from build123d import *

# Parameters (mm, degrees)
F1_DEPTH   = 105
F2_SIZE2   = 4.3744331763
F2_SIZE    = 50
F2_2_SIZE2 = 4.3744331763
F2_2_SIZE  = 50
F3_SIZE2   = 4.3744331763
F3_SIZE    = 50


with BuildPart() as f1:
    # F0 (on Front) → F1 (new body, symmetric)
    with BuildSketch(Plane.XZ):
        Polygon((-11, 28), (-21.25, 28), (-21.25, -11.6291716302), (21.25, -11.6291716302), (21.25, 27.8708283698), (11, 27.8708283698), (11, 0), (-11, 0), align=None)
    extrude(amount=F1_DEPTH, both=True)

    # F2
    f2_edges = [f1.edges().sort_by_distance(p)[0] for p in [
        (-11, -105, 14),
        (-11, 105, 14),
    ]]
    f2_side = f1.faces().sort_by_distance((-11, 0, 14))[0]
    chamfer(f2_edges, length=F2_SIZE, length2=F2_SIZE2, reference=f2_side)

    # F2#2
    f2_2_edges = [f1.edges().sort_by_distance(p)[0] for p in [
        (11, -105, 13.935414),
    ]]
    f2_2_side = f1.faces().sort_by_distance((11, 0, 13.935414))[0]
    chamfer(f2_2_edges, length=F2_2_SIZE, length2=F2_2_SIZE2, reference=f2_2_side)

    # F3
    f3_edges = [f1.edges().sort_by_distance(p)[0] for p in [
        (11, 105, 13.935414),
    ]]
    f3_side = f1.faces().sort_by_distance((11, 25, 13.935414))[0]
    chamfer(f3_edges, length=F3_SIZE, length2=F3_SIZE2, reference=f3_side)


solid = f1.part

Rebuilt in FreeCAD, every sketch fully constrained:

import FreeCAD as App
import Part
import Sketcher
from FreeCAD import Vector


def edges_at(feature, points):
    """Names of the edges that pass closest to the given points."""
    edges = feature.Shape.Edges
    near = lambda p: min(range(len(edges)), key=lambda i: edges[i].distToShape(Part.Vertex(*p))[0])
    return sorted({f"Edge{near(p) + 1}" for p in points})

doc = App.newDocument("Part")
params = doc.addObject("Spreadsheet::Sheet", "Params")
for row, (alias, value) in enumerate([
    ("sketch1_width", "22 mm"),
    ("sketch1_height", "28 mm"),
    ("sketch1_width2", "42.5 mm"),
    ("sketch1_height2", "39.5 mm"),
    ("pad1_length", "210 mm"),
    ("chamfer_size", "50 mm"),
    ("chamfer_size2", "4.374433 mm"),
    ("chamfer2_size", "50 mm"),
    ("chamfer2_size2", "4.374433 mm"),
    ("chamfer3_size", "50 mm"),
    ("chamfer3_size2", "4.374433 mm"),
], start=1):
    params.set(f"A{row}", alias)
    params.set(f"B{row}", "=" + value)
    params.setAlias(f"B{row}", alias)

body = doc.addObject("PartDesign::Body", "Body")

sketch1 = body.newObject("Sketcher::SketchObject", "Sketch")
sketch1.AttachmentSupport = (doc.getObject("XZ_Plane"), [""])
sketch1.MapMode = "FlatFace"
sketch1.addGeometry([
    Part.LineSegment(Vector(-11, 28, 0), Vector(-21.25, 28, 0)),
    Part.LineSegment(Vector(-21.25, 28, 0), Vector(-21.25, -11.629172, 0)),
    Part.LineSegment(Vector(-21.25, -11.629172, 0), Vector(21.25, -11.629172, 0)),
    Part.LineSegment(Vector(21.25, -11.629172, 0), Vector(21.25, 27.870828, 0)),
    Part.LineSegment(Vector(21.25, 27.870828, 0), Vector(11, 27.870828, 0)),
    Part.LineSegment(Vector(11, 27.870828, 0), Vector(11, 0, 0)),
    Part.LineSegment(Vector(11, 0, 0), Vector(-11, 0, 0)),
    Part.LineSegment(Vector(-11, 0, 0), Vector(-11, 28, 0)),
], False)
sketch1.addConstraint([
    Sketcher.Constraint("Coincident", 0, 2, 1, 1),
    Sketcher.Constraint("Coincident", 1, 2, 2, 1),
    Sketcher.Constraint("Coincident", 2, 2, 3, 1),
    Sketcher.Constraint("Coincident", 3, 2, 4, 1),
    Sketcher.Constraint("Coincident", 4, 2, 5, 1),
    Sketcher.Constraint("Coincident", 5, 2, 6, 1),
    Sketcher.Constraint("Coincident", 6, 2, 7, 1),
    Sketcher.Constraint("Coincident", 7, 2, 0, 1),
    Sketcher.Constraint("Horizontal", 0),
    Sketcher.Constraint("Vertical", 1),
    Sketcher.Constraint("Horizontal", 2),
    Sketcher.Constraint("Vertical", 3),
    Sketcher.Constraint("Horizontal", 4),
    Sketcher.Constraint("Vertical", 5),
    Sketcher.Constraint("Horizontal", 6),
    Sketcher.Constraint("Vertical", 7),
    Sketcher.Constraint("Symmetric", 5, 2, 6, 2, -1, 1),
    Sketcher.Constraint("Equal", 0, 4),
    Sketcher.Constraint("DistanceX", 6, 2, 6, 1, 22.0),
    Sketcher.Constraint("DistanceY", 7, 1, 7, 2, 28.0),
    Sketcher.Constraint("DistanceX", 2, 1, 2, 2, 42.5),
    Sketcher.Constraint("DistanceY", 3, 1, 3, 2, 39.5),
    Sketcher.Constraint("DistanceY", 1, 2, 1, 1, 39.629172),
])
sketch1.setExpression("Constraints[18]", "Params.sketch1_width")
sketch1.setExpression("Constraints[19]", "Params.sketch1_height")
sketch1.setExpression("Constraints[20]", "Params.sketch1_width2")
sketch1.setExpression("Constraints[21]", "Params.sketch1_height2")
pad1 = body.newObject("PartDesign::Pad", "Pad")
pad1.Profile = sketch1
pad1.setExpression("Length", "Params.pad1_length")
pad1.Midplane = True
doc.recompute()

chamfer = body.newObject("PartDesign::Chamfer", "Chamfer")
chamfer.Base = (pad1, edges_at(pad1, [(-11, -105, 14), (-11, 105, 14)]))
chamfer.ChamferType = "Two distances"
chamfer.setExpression("Size", "Params.chamfer_size")
chamfer.setExpression("Size2", "Params.chamfer_size2")
doc.recompute()

chamfer2 = body.newObject("PartDesign::Chamfer", "Chamfer001")
chamfer2.Base = (chamfer, edges_at(chamfer, [(11, -105, 13.935)]))
chamfer2.ChamferType = "Two distances"
chamfer2.setExpression("Size", "Params.chamfer2_size")
chamfer2.setExpression("Size2", "Params.chamfer2_size2")
chamfer2.FlipDirection = True
doc.recompute()

chamfer3 = body.newObject("PartDesign::Chamfer", "Chamfer002")
chamfer3.Base = (chamfer2, edges_at(chamfer2, [(11, 105, 13.935)]))
chamfer3.ChamferType = "Two distances"
chamfer3.setExpression("Size", "Params.chamfer3_size")
chamfer3.setExpression("Size2", "Params.chamfer3_size2")

doc.recompute()
